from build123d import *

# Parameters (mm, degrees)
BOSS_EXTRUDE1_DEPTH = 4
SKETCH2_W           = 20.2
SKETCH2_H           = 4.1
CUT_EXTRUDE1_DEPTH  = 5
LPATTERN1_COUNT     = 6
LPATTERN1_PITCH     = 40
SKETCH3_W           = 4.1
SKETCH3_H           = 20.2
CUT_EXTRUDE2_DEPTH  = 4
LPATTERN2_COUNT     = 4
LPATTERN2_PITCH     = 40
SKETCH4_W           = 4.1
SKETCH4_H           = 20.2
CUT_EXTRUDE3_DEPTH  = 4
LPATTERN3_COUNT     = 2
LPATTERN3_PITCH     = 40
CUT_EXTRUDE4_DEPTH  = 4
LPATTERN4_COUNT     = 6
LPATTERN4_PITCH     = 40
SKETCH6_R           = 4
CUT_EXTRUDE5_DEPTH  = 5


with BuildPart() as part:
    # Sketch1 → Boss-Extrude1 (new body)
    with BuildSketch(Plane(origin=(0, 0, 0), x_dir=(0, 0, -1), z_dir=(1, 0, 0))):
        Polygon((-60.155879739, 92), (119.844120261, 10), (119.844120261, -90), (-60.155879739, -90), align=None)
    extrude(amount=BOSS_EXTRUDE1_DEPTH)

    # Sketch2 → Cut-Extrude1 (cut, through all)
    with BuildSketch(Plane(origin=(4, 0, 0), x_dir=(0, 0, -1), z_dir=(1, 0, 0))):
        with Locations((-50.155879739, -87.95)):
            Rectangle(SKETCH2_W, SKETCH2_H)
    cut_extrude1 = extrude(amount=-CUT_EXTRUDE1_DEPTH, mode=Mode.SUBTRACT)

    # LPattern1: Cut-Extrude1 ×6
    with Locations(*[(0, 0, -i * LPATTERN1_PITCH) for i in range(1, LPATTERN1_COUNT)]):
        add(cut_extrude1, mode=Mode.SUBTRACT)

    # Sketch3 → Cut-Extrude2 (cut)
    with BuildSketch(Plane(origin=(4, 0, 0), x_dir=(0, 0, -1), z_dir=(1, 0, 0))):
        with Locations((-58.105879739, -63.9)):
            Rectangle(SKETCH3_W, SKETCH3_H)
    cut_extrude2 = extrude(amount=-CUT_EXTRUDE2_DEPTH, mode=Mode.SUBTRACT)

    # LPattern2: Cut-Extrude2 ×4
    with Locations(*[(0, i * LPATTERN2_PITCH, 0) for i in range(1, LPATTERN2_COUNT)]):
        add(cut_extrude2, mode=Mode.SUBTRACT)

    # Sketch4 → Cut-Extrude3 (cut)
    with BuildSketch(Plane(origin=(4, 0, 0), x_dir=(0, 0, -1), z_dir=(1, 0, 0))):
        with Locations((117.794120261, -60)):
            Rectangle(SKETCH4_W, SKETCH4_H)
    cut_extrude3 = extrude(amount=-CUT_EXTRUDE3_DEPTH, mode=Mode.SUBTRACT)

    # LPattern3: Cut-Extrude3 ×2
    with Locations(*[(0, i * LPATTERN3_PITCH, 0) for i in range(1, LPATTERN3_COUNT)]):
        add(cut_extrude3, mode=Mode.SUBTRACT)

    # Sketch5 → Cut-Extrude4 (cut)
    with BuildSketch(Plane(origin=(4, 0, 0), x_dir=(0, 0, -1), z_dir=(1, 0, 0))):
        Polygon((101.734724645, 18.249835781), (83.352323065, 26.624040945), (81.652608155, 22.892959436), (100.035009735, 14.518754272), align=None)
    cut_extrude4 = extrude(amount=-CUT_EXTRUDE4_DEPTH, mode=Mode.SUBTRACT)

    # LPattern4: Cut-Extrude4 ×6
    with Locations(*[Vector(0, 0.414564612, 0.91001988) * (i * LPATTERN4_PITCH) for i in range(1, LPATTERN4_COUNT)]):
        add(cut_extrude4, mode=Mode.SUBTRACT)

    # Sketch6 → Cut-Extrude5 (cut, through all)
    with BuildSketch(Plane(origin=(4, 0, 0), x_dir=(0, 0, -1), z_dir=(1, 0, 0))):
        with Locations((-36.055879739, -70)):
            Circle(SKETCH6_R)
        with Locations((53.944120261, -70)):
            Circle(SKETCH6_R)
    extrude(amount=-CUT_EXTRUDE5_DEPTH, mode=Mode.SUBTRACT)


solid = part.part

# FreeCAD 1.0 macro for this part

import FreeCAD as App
import Part
import Sketcher
Q = App.Units.Quantity


def add_polygon(sketch, points):
    """Adds a closed chain of lines whose ends are joined by coincident constraints."""
    first, n = sketch.GeometryCount, len(points)
    for a, b in zip(points, points[1:] + points[:1]):
        sketch.addGeometry(Part.LineSegment(App.Vector(*a, 0), App.Vector(*b, 0)), False)
    for i in range(n):
        sketch.addConstraint(Sketcher.Constraint("Coincident", first + i, 2, first + (i + 1) % n, 1))

doc = App.newDocument("Part")
body = doc.addObject("PartDesign::Body", "Body")

# Sketch on YZ plane
sketch1 = doc.addObject("Sketcher::SketchObject", "Sketch")
body.addObject(sketch1)
sketch1.AttachmentSupport = (doc.YZ_Plane, [""])
sketch1.MapMode = "FlatFace"
add_polygon(sketch1, [(10, -120), (92, 60), (-90, 60), (-90, -120)])  # lines 0-3
sketch1.addConstraint([
    Sketcher.Constraint("Horizontal", 1),
    Sketcher.Constraint("Vertical", 2),
    Sketcher.Constraint("Horizontal", 3),
    Sketcher.Constraint("DistanceX", 1, 2, 1, 1, Q("182 mm")),
    Sketcher.Constraint("DistanceX", 3, 1, 3, 2, Q("100 mm")),
    Sketcher.Constraint("DistanceY", 2, 2, 2, 1, Q("180 mm")),
    Sketcher.Constraint("DistanceX", -1, 1, 0, 2, Q("92 mm")),
    Sketcher.Constraint("DistanceY", -1, 1, 0, 2, Q("60.15588 mm")),
])
pad1 = doc.addObject("PartDesign::Pad", "Pad")
body.addObject(pad1)
pad1.Profile = sketch1
pad1.Length = 4

# Sketch on YZ plane
sketch2 = doc.addObject("Sketcher::SketchObject", "Sketch001")
body.addObject(sketch2)
sketch2.AttachmentSupport = (doc.YZ_Plane, [""])
sketch2.MapMode = "FlatFace"
sketch2.AttachmentOffset = App.Placement(App.Vector(0, 0, 4), App.Rotation())
add_polygon(sketch2, [(-85.9, 60.3), (-90, 60.3), (-90, 40.1), (-85.9, 40.1)])  # lines 0-3
sketch2.addConstraint([
    Sketcher.Constraint("Horizontal", 0),
    Sketcher.Constraint("Vertical", 1),
    Sketcher.Constraint("Horizontal", 2),
    Sketcher.Constraint("Vertical", 3),
    Sketcher.Constraint("DistanceX", 0, 2, 0, 1, Q("4.1 mm")),
    Sketcher.Constraint("DistanceY", 1, 2, 1, 1, Q("20.2 mm")),
    Sketcher.Constraint("DistanceX", 0, 2, -1, 1, Q("90 mm")),
    Sketcher.Constraint("DistanceY", -1, 1, 0, 2, Q("60.25588 mm")),
])
pocket1 = doc.addObject("PartDesign::Pocket", "Pocket")
body.addObject(pocket1)
pocket1.Profile = sketch2
pocket1.Type = "ThroughAll"
doc.recompute()

linearpattern = doc.addObject("PartDesign::LinearPattern", "LinearPattern")
body.addObject(linearpattern)
linearpattern.Originals = [pocket1]
linearpattern.Direction = (doc.Z_Axis, [""])
linearpattern.Mode = "offset"
linearpattern.Offset = 40
linearpattern.Occurrences = 6
linearpattern.Reversed = True
body.Tip = linearpattern

# Sketch on YZ plane
sketch3 = doc.addObject("Sketcher::SketchObject", "Sketch002")
body.addObject(sketch3)
sketch3.AttachmentSupport = (doc.YZ_Plane, [""])
sketch3.MapMode = "FlatFace"
sketch3.AttachmentOffset = App.Placement(App.Vector(0, 0, 4), App.Rotation())
add_polygon(sketch3, [(-53.8, 60.2), (-74, 60.2), (-74, 56.1), (-53.8, 56.1)])  # lines 0-3
sketch3.addConstraint([
    Sketcher.Constraint("Horizontal", 0),
    Sketcher.Constraint("Vertical", 1),
    Sketcher.Constraint("Horizontal", 2),
    Sketcher.Constraint("Vertical", 3),
    Sketcher.Constraint("DistanceX", 0, 2, 0, 1, Q("20.2 mm")),
    Sketcher.Constraint("DistanceY", 1, 2, 1, 1, Q("4.1 mm")),
    Sketcher.Constraint("DistanceX", 0, 2, -1, 1, Q("74 mm")),
    Sketcher.Constraint("DistanceY", -1, 1, 0, 2, Q("60.15588 mm")),
])
pocket2 = doc.addObject("PartDesign::Pocket", "Pocket001")
body.addObject(pocket2)
pocket2.Profile = sketch3
pocket2.Length = 4
doc.recompute()

linearpattern2 = doc.addObject("PartDesign::LinearPattern", "LinearPattern001")
body.addObject(linearpattern2)
linearpattern2.Originals = [pocket2]
linearpattern2.Direction = (doc.Y_Axis, [""])
linearpattern2.Mode = "offset"
linearpattern2.Offset = 40
linearpattern2.Occurrences = 4
body.Tip = linearpattern2

# Sketch on YZ plane
sketch4 = doc.addObject("Sketcher::SketchObject", "Sketch003")
body.addObject(sketch4)
sketch4.AttachmentSupport = (doc.YZ_Plane, [""])
sketch4.MapMode = "FlatFace"
sketch4.AttachmentOffset = App.Placement(App.Vector(0, 0, 4), App.Rotation())
add_polygon(sketch4, [(-49.9, -115.7), (-70.1, -115.7), (-70.1, -119.8), (-49.9, -119.8)])  # lines 0-3
sketch4.addConstraint([
    Sketcher.Constraint("Horizontal", 0),
    Sketcher.Constraint("Vertical", 1),
    Sketcher.Constraint("Horizontal", 2),
    Sketcher.Constraint("Vertical", 3),
    Sketcher.Constraint("DistanceX", 0, 2, 0, 1, Q("20.2 mm")),
    Sketcher.Constraint("DistanceY", 1, 2, 1, 1, Q("4.1 mm")),
    Sketcher.Constraint("DistanceX", 0, 2, -1, 1, Q("70.1 mm")),
    Sketcher.Constraint("DistanceY", 0, 2, -1, 1, Q("115.74412 mm")),
])
pocket3 = doc.addObject("PartDesign::Pocket", "Pocket002")
body.addObject(pocket3)
pocket3.Profile = sketch4
pocket3.Length = 4
doc.recompute()

linearpattern3 = doc.addObject("PartDesign::LinearPattern", "LinearPattern002")
body.addObject(linearpattern3)
linearpattern3.Originals = [pocket3]
linearpattern3.Direction = (doc.Y_Axis, [""])
linearpattern3.Mode = "offset"
linearpattern3.Offset = 40
linearpattern3.Occurrences = 2
body.Tip = linearpattern3

# Sketch on YZ plane
sketch5 = doc.addObject("Sketcher::SketchObject", "Sketch004")
body.addObject(sketch5)
sketch5.AttachmentSupport = (doc.YZ_Plane, [""])
sketch5.MapMode = "FlatFace"
sketch5.AttachmentOffset = App.Placement(App.Vector(0, 0, 4), App.Rotation())
add_polygon(sketch5, [(18.2, -101.7), (26.6, -83.4), (22.9, -81.7), (14.5, -100)])  # lines 0-3
sketch5.addConstraint([
    Sketcher.Constraint("Perpendicular", 0, 1),
    Sketcher.Constraint("Perpendicular", 1, 2),
    Sketcher.Constraint("Perpendicular", 2, 3),
    Sketcher.Constraint("Distance", 0, Q("20.2 mm")),
    Sketcher.Constraint("Distance", 1, Q("4.1 mm")),
    Sketcher.Constraint("DistanceY", 2, 2, 1, 2, Q("18.382402 mm")),
    Sketcher.Constraint("DistanceX", -1, 1, 0, 2, Q("26.624041 mm")),
    Sketcher.Constraint("DistanceY", 1, 2, -1, 1, Q("81.652608 mm")),
])
pocket4 = doc.addObject("PartDesign::Pocket", "Pocket003")
body.addObject(pocket4)
pocket4.Profile = sketch5
pocket4.Length = 4
doc.recompute()

datumline = doc.addObject("PartDesign::Line", "DatumLine")
body.addObject(datumline)
datumline.Placement = App.Placement(App.Vector(0, 0, 0), App.Rotation(App.Vector(0, 0, 1), App.Vector(0, 0.414564612, 0.91001988)))
linearpattern4 = doc.addObject("PartDesign::LinearPattern", "LinearPattern003")
body.addObject(linearpattern4)
linearpattern4.Originals = [pocket4]
linearpattern4.Direction = (datumline, [""])
linearpattern4.Mode = "offset"
linearpattern4.Offset = 40
linearpattern4.Occurrences = 6
body.Tip = linearpattern4

# Sketch on YZ plane
sketch6 = doc.addObject("Sketcher::SketchObject", "Sketch005")
body.addObject(sketch6)
sketch6.AttachmentSupport = (doc.YZ_Plane, [""])
sketch6.MapMode = "FlatFace"
sketch6.AttachmentOffset = App.Placement(App.Vector(0, 0, 4), App.Rotation())
sketch6.addGeometry([
    Part.Circle(App.Vector(-70, 36.1, 0), App.Vector(0, 0, 1), 4),
    Part.Circle(App.Vector(-70, -53.9, 0), App.Vector(0, 0, 1), 4),
], False)
sketch6.addConstraint([
    Sketcher.Constraint("Equal", 0, 1),
    Sketcher.Constraint("Vertical", 0, 3, 1, 3),
    Sketcher.Constraint("Diameter", 0, Q("8 mm")),
    Sketcher.Constraint("DistanceX", 0, 3, -1, 1, Q("70 mm")),
    Sketcher.Constraint("DistanceY", 1, 3, 0, 3, Q("90 mm")),
    Sketcher.Constraint("DistanceY", -1, 1, 0, 3, Q("36.05588 mm")),
])
pocket5 = doc.addObject("PartDesign::Pocket", "Pocket004")
body.addObject(pocket5)
pocket5.Profile = sketch6
pocket5.Type = "ThroughAll"

doc.recompute()
